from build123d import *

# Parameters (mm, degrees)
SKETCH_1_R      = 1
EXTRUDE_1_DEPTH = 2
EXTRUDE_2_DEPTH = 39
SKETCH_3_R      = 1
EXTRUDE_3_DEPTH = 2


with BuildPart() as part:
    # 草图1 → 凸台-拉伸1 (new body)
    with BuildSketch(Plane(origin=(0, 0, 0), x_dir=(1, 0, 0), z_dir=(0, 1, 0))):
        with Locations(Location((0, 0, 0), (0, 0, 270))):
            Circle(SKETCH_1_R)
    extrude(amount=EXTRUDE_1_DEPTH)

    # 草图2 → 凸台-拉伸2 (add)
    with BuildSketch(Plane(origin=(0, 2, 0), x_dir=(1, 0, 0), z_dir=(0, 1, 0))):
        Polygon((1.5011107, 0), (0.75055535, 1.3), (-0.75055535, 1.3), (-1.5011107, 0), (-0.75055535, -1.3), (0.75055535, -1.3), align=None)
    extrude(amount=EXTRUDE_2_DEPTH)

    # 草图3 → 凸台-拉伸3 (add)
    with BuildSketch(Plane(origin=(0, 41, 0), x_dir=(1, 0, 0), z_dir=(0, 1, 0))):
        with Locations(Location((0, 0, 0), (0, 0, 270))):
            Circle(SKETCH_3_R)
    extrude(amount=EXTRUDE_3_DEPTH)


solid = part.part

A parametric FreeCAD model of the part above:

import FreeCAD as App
import Part
import Sketcher
from FreeCAD import Vector
Q = App.Units.Quantity

doc = App.newDocument("Part")
params = doc.addObject("Spreadsheet::Sheet", "Params")
for row, (alias, value) in enumerate([
    ("sketch1_diameter", "2 mm"),
    ("pad1_length", "2 mm"),
    ("pad2_length", "39 mm"),
    ("sketch3_diameter", "2 mm"),
    ("pad3_length", "2 mm"),
], start=1):
    params.set(f"A{row}", alias)
    params.set(f"B{row}", "=" + value)
    params.setAlias(f"B{row}", alias)

body = doc.addObject("PartDesign::Body", "Body")

sketch1 = body.newObject("Sketcher::SketchObject", "Sketch")
sketch1.AttachmentSupport = (doc.getObject("XZ_Plane"), [""])
sketch1.MapMode = "FlatFace"
sketch1.addGeometry(Part.Circle(Vector(0, 0, 0), Vector(0, 0, 1), 1), False)
sketch1.addConstraint(Sketcher.Constraint("Coincident", 0, 3, -1, 1))
sketch1.addConstraint(Sketcher.Constraint("Diameter", 0, Q("2 mm")))
sketch1.setExpression("Constraints[1]", "Params.sketch1_diameter")
pad1 = body.newObject("PartDesign::Pad", "Pad")
pad1.Profile = sketch1
pad1.setExpression("Length", "Params.pad1_length")
pad1.Reversed = True

sketch2 = body.newObject("Sketcher::SketchObject", "Sketch001")
sketch2.AttachmentSupport = (doc.getObject("XZ_Plane"), [""])
sketch2.MapMode = "FlatFace"
sketch2.AttachmentOffset = App.Placement(Vector(0, 0, -2), App.Rotation())
sketch2.addGeometry(Part.LineSegment(Vector(1.501111, 0, 0), Vector(0.750555, -1.3, 0)), False)
sketch2.addGeometry(Part.LineSegment(Vector(0.750555, -1.3, 0), Vector(-0.750555, -1.3, 0)), False)
sketch2.addGeometry(Part.LineSegment(Vector(-0.750555, -1.3, 0), Vector(-1.501111, 0, 0)), False)
sketch2.addGeometry(Part.LineSegment(Vector(-1.501111, 0, 0), Vector(-0.750555, 1.3, 0)), False)
sketch2.addGeometry(Part.LineSegment(Vector(-0.750555, 1.3, 0), Vector(0.750555, 1.3, 0)), False)
sketch2.addGeometry(Part.LineSegment(Vector(0.750555, 1.3, 0), Vector(1.501111, 0, 0)), False)
sketch2.addConstraint(Sketcher.Constraint("Coincident", 0, 2, 1, 1))
sketch2.addConstraint(Sketcher.Constraint("Coincident", 1, 2, 2, 1))
sketch2.addConstraint(Sketcher.Constraint("Coincident", 2, 2, 3, 1))
sketch2.addConstraint(Sketcher.Constraint("Coincident", 3, 2, 4, 1))
sketch2.addConstraint(Sketcher.Constraint("Coincident", 4, 2, 5, 1))
sketch2.addConstraint(Sketcher.Constraint("Coincident", 5, 2, 0, 1))
sketch2.addConstraint(Sketcher.Constraint("Horizontal", 1))
sketch2.addConstraint(Sketcher.Constraint("Horizontal", 4))
sketch2.addConstraint(Sketcher.Constraint("Symmetric", 0, 2, 3, 2, -1, 1))
sketch2.addConstraint(Sketcher.Constraint("Symmetric", 2, 2, 5, 2, -1, 1))
sketch2.addConstraint(Sketcher.Constraint("PointOnObject", 2, 2, -1))
sketch2.addConstraint(Sketcher.Constraint("Parallel", 2, 5))
sketch2.addConstraint(Sketcher.Constraint("Vertical", 1, 2, 3, 2))
sketch2.addConstraint(Sketcher.Constraint("Angle", 0, Q("-120 deg")))
sketch2.addConstraint(Sketcher.Constraint("DistanceY", 0, 2, -1, 1, Q("1.3 mm")))
sketch2.addConstraint(Sketcher.Constraint("DistanceX", 1, 2, 1, 1, Q("1.501111 mm")))
pad2 = body.newObject("PartDesign::Pad", "Pad001")
pad2.Profile = sketch2
pad2.setExpression("Length", "Params.pad2_length")
pad2.Reversed = True

sketch3 = body.newObject("Sketcher::SketchObject", "Sketch002")
sketch3.AttachmentSupport = (doc.getObject("XZ_Plane"), [""])
sketch3.MapMode = "FlatFace"
sketch3.AttachmentOffset = App.Placement(Vector(0, 0, -41), App.Rotation())
sketch3.addGeometry(Part.Circle(Vector(0, 0, 0), Vector(0, 0, 1), 1), False)
sketch3.addConstraint(Sketcher.Constraint("Coincident", 0, 3, -1, 1))
sketch3.addConstraint(Sketcher.Constraint("Diameter", 0, Q("2 mm")))
sketch3.setExpression("Constraints[1]", "Params.sketch3_diameter")
pad3 = body.newObject("PartDesign::Pad", "Pad002")
pad3.Profile = sketch3
pad3.setExpression("Length", "Params.pad3_length")
pad3.Reversed = True

doc.recompute()
